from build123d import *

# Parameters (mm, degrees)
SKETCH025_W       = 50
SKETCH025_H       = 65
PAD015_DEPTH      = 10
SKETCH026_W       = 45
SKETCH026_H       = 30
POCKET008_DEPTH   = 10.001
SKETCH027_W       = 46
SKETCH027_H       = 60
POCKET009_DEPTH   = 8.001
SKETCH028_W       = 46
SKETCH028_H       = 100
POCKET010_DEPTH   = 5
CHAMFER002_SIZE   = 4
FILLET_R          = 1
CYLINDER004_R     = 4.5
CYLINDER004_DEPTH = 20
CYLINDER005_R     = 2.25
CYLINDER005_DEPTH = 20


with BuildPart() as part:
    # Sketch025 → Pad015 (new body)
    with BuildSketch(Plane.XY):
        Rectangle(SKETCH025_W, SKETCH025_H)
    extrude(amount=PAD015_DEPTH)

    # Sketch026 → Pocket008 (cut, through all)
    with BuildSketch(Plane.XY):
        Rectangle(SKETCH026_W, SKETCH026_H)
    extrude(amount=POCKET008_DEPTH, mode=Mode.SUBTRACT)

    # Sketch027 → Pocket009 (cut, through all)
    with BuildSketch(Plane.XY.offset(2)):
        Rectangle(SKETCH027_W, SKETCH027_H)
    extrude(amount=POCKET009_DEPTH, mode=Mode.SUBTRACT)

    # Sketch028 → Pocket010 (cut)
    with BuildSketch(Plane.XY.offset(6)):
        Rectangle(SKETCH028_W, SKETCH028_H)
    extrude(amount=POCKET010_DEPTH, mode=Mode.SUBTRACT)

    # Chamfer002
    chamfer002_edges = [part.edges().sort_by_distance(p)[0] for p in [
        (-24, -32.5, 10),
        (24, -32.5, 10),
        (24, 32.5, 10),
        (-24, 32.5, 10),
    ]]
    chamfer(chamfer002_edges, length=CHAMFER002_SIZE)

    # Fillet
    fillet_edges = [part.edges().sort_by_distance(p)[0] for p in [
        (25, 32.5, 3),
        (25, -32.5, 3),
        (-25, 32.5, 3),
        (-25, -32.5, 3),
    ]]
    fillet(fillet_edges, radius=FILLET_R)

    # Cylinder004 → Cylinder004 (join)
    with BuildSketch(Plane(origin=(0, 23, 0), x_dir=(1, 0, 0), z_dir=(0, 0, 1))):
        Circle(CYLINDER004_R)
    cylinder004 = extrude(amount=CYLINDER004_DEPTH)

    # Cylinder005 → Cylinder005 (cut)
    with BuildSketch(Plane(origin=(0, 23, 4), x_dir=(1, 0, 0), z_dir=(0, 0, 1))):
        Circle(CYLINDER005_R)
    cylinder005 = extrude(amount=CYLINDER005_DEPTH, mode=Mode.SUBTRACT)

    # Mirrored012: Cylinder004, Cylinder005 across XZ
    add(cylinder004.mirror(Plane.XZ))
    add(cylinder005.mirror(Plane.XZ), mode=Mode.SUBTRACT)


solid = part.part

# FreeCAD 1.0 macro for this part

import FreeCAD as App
import Part
import Sketcher

V = App.Vector


def edges_at(feature, points):
    """Names of the edges that pass closest to the given points."""
    edges = feature.Shape.Edges
    near = lambda p: min(range(len(edges)), key=lambda i: edges[i].distToShape(Part.Vertex(*p))[0])
    return sorted({f"Edge{near(p) + 1}" for p in points})

doc = App.newDocument("Part")
body = doc.addObject("PartDesign::Body", "Body")

sketch1 = doc.addObject("Sketcher::SketchObject", "Sketch")
body.addObject(sketch1)
sketch1.AttachmentSupport = (doc.XY_Plane, [""])
sketch1.MapMode = "FlatFace"
sketch1.addGeometry(Part.LineSegment(V(-25, 32, 0), V(-25, -32, 0)), False)
sketch1.addGeometry(Part.LineSegment(V(-25, -32, 0), V(25, -32, 0)), False)
sketch1.addGeometry(Part.LineSegment(V(25, -32, 0), V(25, 32, 0)), False)
sketch1.addGeometry(Part.LineSegment(V(25, 32, 0), V(-25, 32, 0)), False)
sketch1.addConstraint(Sketcher.Constraint("Coincident", 0, 2, 1, 1))
sketch1.addConstraint(Sketcher.Constraint("Coincident", 1, 2, 2, 1))
sketch1.addConstraint(Sketcher.Constraint("Coincident", 2, 2, 3, 1))
sketch1.addConstraint(Sketcher.Constraint("Coincident", 3, 2, 0, 1))
sketch1.addConstraint(Sketcher.Constraint("Vertical", 0))
sketch1.addConstraint(Sketcher.Constraint("Horizontal", 1))
sketch1.addConstraint(Sketcher.Constraint("Vertical", 2))
sketch1.addConstraint(Sketcher.Constraint("Horizontal", 3))
sketch1.addConstraint(Sketcher.Constraint("Symmetric", 0, 2, 2, 2, -1, 1))
sketch1.addConstraint(Sketcher.Constraint("DistanceX", 1, 1, 1, 2, 50.0))
sketch1.addConstraint(Sketcher.Constraint("DistanceY", 0, 2, 0, 1, 65.0))
pad1 = doc.addObject("PartDesign::Pad", "Pad")
body.addObject(pad1)
pad1.Profile = sketch1
pad1.Length = 10

sketch2 = doc.addObject("Sketcher::SketchObject", "Sketch001")
body.addObject(sketch2)
sketch2.AttachmentSupport = (doc.XY_Plane, [""])
sketch2.MapMode = "FlatFace"
sketch2.addGeometry(Part.LineSegment(V(-22, 15, 0), V(-22, -15, 0)), False)
sketch2.addGeometry(Part.LineSegment(V(-22, -15, 0), V(22, -15, 0)), False)
sketch2.addGeometry(Part.LineSegment(V(22, -15, 0), V(22, 15, 0)), False)
sketch2.addGeometry(Part.LineSegment(V(22, 15, 0), V(-22, 15, 0)), False)
sketch2.addConstraint(Sketcher.Constraint("Coincident", 0, 2, 1, 1))
sketch2.addConstraint(Sketcher.Constraint("Coincident", 1, 2, 2, 1))
sketch2.addConstraint(Sketcher.Constraint("Coincident", 2, 2, 3, 1))
sketch2.addConstraint(Sketcher.Constraint("Coincident", 3, 2, 0, 1))
sketch2.addConstraint(Sketcher.Constraint("Vertical", 0))
sketch2.addConstraint(Sketcher.Constraint("Horizontal", 1))
sketch2.addConstraint(Sketcher.Constraint("Vertical", 2))
sketch2.addConstraint(Sketcher.Constraint("Horizontal", 3))
sketch2.addConstraint(Sketcher.Constraint("Symmetric", 0, 2, 2, 2, -1, 1))
sketch2.addConstraint(Sketcher.Constraint("DistanceX", 1, 1, 1, 2, 45.0))
sketch2.addConstraint(Sketcher.Constraint("DistanceY", 0, 2, 0, 1, 30.0))
pocket1 = doc.addObject("PartDesign::Pocket", "Pocket")
body.addObject(pocket1)
pocket1.Profile = sketch2
pocket1.Type = "ThroughAll"
pocket1.Reversed = True

sketch3 = doc.addObject("Sketcher::SketchObject", "Sketch002")
body.addObject(sketch3)
sketch3.AttachmentSupport = (doc.XY_Plane, [""])
sketch3.MapMode = "FlatFace"
sketch3.AttachmentOffset = App.Placement(V(0, 0, 2), App.Rotation())
sketch3.addGeometry(Part.LineSegment(V(-23, 30, 0), V(-23, -30, 0)), False)
sketch3.addGeometry(Part.LineSegment(V(-23, -30, 0), V(23, -30, 0)), False)
sketch3.addGeometry(Part.LineSegment(V(23, -30, 0), V(23, 30, 0)), False)
sketch3.addGeometry(Part.LineSegment(V(23, 30, 0), V(-23, 30, 0)), False)
sketch3.addConstraint(Sketcher.Constraint("Coincident", 0, 2, 1, 1))
sketch3.addConstraint(Sketcher.Constraint("Coincident", 1, 2, 2, 1))
sketch3.addConstraint(Sketcher.Constraint("Coincident", 2, 2, 3, 1))
sketch3.addConstraint(Sketcher.Constraint("Coincident", 3, 2, 0, 1))
sketch3.addConstraint(Sketcher.Constraint("Vertical", 0))
sketch3.addConstraint(Sketcher.Constraint("Horizontal", 1))
sketch3.addConstraint(Sketcher.Constraint("Vertical", 2))
sketch3.addConstraint(Sketcher.Constraint("Horizontal", 3))
sketch3.addConstraint(Sketcher.Constraint("Symmetric", 0, 2, 2, 2, -1, 1))
sketch3.addConstraint(Sketcher.Constraint("DistanceX", 1, 1, 1, 2, 46.0))
sketch3.addConstraint(Sketcher.Constraint("DistanceY", 0, 2, 0, 1, 60.0))
pocket2 = doc.addObject("PartDesign::Pocket", "Pocket001")
body.addObject(pocket2)
pocket2.Profile = sketch3
pocket2.Type = "ThroughAll"
pocket2.Reversed = True

sketch4 = doc.addObject("Sketcher::SketchObject", "Sketch003")
body.addObject(sketch4)
sketch4.AttachmentSupport = (doc.XY_Plane, [""])
sketch4.MapMode = "FlatFace"
sketch4.AttachmentOffset = App.Placement(V(0, 0, 6), App.Rotation())
sketch4.addGeometry(Part.LineSegment(V(-23, 50, 0), V(-23, -50, 0)), False)
sketch4.addGeometry(Part.LineSegment(V(-23, -50, 0), V(23, -50, 0)), False)
sketch4.addGeometry(Part.LineSegment(V(23, -50, 0), V(23, 50, 0)), False)
sketch4.addGeometry(Part.LineSegment(V(23, 50, 0), V(-23, 50, 0)), False)
sketch4.addConstraint(Sketcher.Constraint("Coincident", 0, 2, 1, 1))
sketch4.addConstraint(Sketcher.Constraint("Coincident", 1, 2, 2, 1))
sketch4.addConstraint(Sketcher.Constraint("Coincident", 2, 2, 3, 1))
sketch4.addConstraint(Sketcher.Constraint("Coincident", 3, 2, 0, 1))
sketch4.addConstraint(Sketcher.Constraint("Vertical", 0))
sketch4.addConstraint(Sketcher.Constraint("Horizontal", 1))
sketch4.addConstraint(Sketcher.Constraint("Vertical", 2))
sketch4.addConstraint(Sketcher.Constraint("Horizontal", 3))
sketch4.addConstraint(Sketcher.Constraint("Symmetric", 0, 2, 2, 2, -1, 1))
sketch4.addConstraint(Sketcher.Constraint("DistanceX", 1, 1, 1, 2, 46.0))
sketch4.addConstraint(Sketcher.Constraint("DistanceY", 0, 2, 0, 1, 100.0))
pocket3 = doc.addObject("PartDesign::Pocket", "Pocket002")
body.addObject(pocket3)
pocket3.Profile = sketch4
pocket3.Length = 5
pocket3.Reversed = True
doc.recompute()

chamfer = doc.addObject("PartDesign::Chamfer", "Chamfer")
body.addObject(chamfer)
chamfer.Base = (pocket3, edges_at(pocket3, [
    (-24, -32.5, 10),
    (24, -32.5, 10),
    (24, 32.5, 10),
    (-24, 32.5, 10),
]))
chamfer.Size = 4
doc.recompute()

fillet = doc.addObject("PartDesign::Fillet", "Fillet")
body.addObject(fillet)
fillet.Base = (chamfer, edges_at(chamfer, [
    (25, 32.5, 3),
    (25, -32.5, 3),
    (-25, 32.5, 3),
    (-25, -32.5, 3),
]))
fillet.Radius = 1

sketch5 = doc.addObject("Sketcher::SketchObject", "Sketch004")
body.addObject(sketch5)
sketch5.AttachmentSupport = (doc.XY_Plane, [""])
sketch5.MapMode = "FlatFace"
sketch5.addGeometry(Part.Circle(V(0, 23, 0), V(0, 0, 1), 4.5), False)
sketch5.addConstraint(Sketcher.Constraint("PointOnObject", 0, 3, -2))
sketch5.addConstraint(Sketcher.Constraint("Diameter", 0, 9.0))
sketch5.addConstraint(Sketcher.Constraint("DistanceY", -1, 1, 0, 3, 23.0))
pad2 = doc.addObject("PartDesign::Pad", "Pad001")
body.addObject(pad2)
pad2.Profile = sketch5
pad2.Length = 20

sketch6 = doc.addObject("Sketcher::SketchObject", "Sketch005")
body.addObject(sketch6)
sketch6.AttachmentSupport = (doc.XY_Plane, [""])
sketch6.MapMode = "FlatFace"
sketch6.AttachmentOffset = App.Placement(V(0, 0, 4), App.Rotation())
sketch6.addGeometry(Part.Circle(V(0, 23, 0), V(0, 0, 1), 2.2), False)
sketch6.addConstraint(Sketcher.Constraint("PointOnObject", 0, 3, -2))
sketch6.addConstraint(Sketcher.Constraint("Diameter", 0, 4.5))
sketch6.addConstraint(Sketcher.Constraint("DistanceY", -1, 1, 0, 3, 23.0))
pocket4 = doc.addObject("PartDesign::Pocket", "Pocket003")
body.addObject(pocket4)
pocket4.Profile = sketch6
pocket4.Length = 20
pocket4.Reversed = True
doc.recompute()

mirrored = doc.addObject("PartDesign::Mirrored", "Mirrored")
body.addObject(mirrored)
mirrored.Originals = [pad2, pocket4]
mirrored.MirrorPlane = (doc.XZ_Plane, [""])
body.Tip = mirrored

doc.recompute()
